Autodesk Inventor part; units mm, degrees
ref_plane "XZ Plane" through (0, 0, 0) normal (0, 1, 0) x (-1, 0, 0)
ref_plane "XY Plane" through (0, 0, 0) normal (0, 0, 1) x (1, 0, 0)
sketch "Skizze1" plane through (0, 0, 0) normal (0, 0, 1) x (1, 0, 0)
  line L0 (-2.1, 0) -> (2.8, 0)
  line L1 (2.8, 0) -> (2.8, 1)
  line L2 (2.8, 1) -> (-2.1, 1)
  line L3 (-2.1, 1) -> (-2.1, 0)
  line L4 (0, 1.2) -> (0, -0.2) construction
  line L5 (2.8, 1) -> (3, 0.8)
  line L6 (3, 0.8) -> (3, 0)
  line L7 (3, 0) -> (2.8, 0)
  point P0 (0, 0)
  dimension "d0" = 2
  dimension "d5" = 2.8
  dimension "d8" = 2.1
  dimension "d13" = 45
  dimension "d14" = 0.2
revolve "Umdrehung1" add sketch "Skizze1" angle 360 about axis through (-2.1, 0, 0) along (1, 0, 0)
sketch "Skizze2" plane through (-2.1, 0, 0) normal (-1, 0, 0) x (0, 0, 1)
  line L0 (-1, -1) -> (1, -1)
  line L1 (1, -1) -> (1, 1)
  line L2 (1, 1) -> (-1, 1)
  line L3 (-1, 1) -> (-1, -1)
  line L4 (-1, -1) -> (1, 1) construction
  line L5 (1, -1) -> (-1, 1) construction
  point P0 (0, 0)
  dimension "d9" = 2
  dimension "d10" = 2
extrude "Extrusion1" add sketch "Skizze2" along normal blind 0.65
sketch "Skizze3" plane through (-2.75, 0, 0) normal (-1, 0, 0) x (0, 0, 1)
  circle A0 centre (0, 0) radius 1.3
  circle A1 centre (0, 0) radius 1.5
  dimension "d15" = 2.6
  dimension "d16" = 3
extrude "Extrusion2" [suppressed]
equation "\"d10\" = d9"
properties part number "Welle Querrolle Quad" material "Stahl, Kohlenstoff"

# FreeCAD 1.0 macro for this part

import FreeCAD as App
import Part
import Sketcher

V = App.Vector


def add_polygon(sketch, points):
    """Adds a closed chain of lines whose ends are joined by coincident constraints."""
    first, n = sketch.GeometryCount, len(points)
    for a, b in zip(points, points[1:] + points[:1]):
        sketch.addGeometry(Part.LineSegment(App.Vector(*a, 0), App.Vector(*b, 0)), False)
    for i in range(n):
        sketch.addConstraint(Sketcher.Constraint("Coincident", first + i, 2, first + (i + 1) % n, 1))

doc = App.newDocument("Part")
body = doc.addObject("PartDesign::Body", "Body")

# Sketch on XY plane
sketch1 = body.newObject("Sketcher::SketchObject", "Sketch")
sketch1.AttachmentSupport = (doc.getObject("XY_Plane"), [""])
sketch1.MapMode = "FlatFace"
add_polygon(sketch1, [(-2.1, 1), (-2.1, 0), (3, 0), (3, 0.8), (2.8, 1)])  # lines 0-4
sketch1.addConstraint([
    Sketcher.Constraint("Vertical", 0),
    Sketcher.Constraint("Horizontal", 1),
    Sketcher.Constraint("Vertical", 2),
    Sketcher.Constraint("Horizontal", 4),
    Sketcher.Constraint("PointOnObject", 0, 2, -1),
    Sketcher.Constraint("DistanceX", 0, 2, -1, 1, 2.1),
    Sketcher.Constraint("DistanceX", -1, 1, 3, 2, 2.8),
    Sketcher.Constraint("DistanceX", 3, 2, 2, 2, 0.2),
    Sketcher.Constraint("DistanceY", 2, 2, 3, 2, 0.2),
    Sketcher.Constraint("DistanceY", 0, 2, 0, 1, 1.0),
])
revolution = body.newObject("PartDesign::Revolution", "Revolution")
revolution.Profile = sketch1
revolution.ReferenceAxis = (sketch1, ["H_Axis"])
revolution.Angle = 360

# Sketch on YZ plane
sketch2 = body.newObject("Sketcher::SketchObject", "Sketch001")
sketch2.AttachmentSupport = (doc.getObject("YZ_Plane"), [""])
sketch2.MapMode = "FlatFace"
sketch2.AttachmentOffset = App.Placement(V(0, 0, -2.1), App.Rotation())
add_polygon(sketch2, [(1, -1), (-1, -1), (-1, 1), (1, 1)])  # lines 0-3
sketch2.addConstraint([
    Sketcher.Constraint("Horizontal", 0),
    Sketcher.Constraint("Vertical", 1),
    Sketcher.Constraint("Horizontal", 2),
    Sketcher.Constraint("Vertical", 3),
    Sketcher.Constraint("Symmetric", 0, 2, 2, 2, -1, 1),
    Sketcher.Constraint("Equal", 2, 1),
    Sketcher.Constraint("DistanceX", 0, 2, 0, 1, 2.0),
])
pad1 = body.newObject("PartDesign::Pad", "Pad")
pad1.Profile = sketch2
pad1.Length = 0.65
pad1.Reversed = True

doc.recompute()
